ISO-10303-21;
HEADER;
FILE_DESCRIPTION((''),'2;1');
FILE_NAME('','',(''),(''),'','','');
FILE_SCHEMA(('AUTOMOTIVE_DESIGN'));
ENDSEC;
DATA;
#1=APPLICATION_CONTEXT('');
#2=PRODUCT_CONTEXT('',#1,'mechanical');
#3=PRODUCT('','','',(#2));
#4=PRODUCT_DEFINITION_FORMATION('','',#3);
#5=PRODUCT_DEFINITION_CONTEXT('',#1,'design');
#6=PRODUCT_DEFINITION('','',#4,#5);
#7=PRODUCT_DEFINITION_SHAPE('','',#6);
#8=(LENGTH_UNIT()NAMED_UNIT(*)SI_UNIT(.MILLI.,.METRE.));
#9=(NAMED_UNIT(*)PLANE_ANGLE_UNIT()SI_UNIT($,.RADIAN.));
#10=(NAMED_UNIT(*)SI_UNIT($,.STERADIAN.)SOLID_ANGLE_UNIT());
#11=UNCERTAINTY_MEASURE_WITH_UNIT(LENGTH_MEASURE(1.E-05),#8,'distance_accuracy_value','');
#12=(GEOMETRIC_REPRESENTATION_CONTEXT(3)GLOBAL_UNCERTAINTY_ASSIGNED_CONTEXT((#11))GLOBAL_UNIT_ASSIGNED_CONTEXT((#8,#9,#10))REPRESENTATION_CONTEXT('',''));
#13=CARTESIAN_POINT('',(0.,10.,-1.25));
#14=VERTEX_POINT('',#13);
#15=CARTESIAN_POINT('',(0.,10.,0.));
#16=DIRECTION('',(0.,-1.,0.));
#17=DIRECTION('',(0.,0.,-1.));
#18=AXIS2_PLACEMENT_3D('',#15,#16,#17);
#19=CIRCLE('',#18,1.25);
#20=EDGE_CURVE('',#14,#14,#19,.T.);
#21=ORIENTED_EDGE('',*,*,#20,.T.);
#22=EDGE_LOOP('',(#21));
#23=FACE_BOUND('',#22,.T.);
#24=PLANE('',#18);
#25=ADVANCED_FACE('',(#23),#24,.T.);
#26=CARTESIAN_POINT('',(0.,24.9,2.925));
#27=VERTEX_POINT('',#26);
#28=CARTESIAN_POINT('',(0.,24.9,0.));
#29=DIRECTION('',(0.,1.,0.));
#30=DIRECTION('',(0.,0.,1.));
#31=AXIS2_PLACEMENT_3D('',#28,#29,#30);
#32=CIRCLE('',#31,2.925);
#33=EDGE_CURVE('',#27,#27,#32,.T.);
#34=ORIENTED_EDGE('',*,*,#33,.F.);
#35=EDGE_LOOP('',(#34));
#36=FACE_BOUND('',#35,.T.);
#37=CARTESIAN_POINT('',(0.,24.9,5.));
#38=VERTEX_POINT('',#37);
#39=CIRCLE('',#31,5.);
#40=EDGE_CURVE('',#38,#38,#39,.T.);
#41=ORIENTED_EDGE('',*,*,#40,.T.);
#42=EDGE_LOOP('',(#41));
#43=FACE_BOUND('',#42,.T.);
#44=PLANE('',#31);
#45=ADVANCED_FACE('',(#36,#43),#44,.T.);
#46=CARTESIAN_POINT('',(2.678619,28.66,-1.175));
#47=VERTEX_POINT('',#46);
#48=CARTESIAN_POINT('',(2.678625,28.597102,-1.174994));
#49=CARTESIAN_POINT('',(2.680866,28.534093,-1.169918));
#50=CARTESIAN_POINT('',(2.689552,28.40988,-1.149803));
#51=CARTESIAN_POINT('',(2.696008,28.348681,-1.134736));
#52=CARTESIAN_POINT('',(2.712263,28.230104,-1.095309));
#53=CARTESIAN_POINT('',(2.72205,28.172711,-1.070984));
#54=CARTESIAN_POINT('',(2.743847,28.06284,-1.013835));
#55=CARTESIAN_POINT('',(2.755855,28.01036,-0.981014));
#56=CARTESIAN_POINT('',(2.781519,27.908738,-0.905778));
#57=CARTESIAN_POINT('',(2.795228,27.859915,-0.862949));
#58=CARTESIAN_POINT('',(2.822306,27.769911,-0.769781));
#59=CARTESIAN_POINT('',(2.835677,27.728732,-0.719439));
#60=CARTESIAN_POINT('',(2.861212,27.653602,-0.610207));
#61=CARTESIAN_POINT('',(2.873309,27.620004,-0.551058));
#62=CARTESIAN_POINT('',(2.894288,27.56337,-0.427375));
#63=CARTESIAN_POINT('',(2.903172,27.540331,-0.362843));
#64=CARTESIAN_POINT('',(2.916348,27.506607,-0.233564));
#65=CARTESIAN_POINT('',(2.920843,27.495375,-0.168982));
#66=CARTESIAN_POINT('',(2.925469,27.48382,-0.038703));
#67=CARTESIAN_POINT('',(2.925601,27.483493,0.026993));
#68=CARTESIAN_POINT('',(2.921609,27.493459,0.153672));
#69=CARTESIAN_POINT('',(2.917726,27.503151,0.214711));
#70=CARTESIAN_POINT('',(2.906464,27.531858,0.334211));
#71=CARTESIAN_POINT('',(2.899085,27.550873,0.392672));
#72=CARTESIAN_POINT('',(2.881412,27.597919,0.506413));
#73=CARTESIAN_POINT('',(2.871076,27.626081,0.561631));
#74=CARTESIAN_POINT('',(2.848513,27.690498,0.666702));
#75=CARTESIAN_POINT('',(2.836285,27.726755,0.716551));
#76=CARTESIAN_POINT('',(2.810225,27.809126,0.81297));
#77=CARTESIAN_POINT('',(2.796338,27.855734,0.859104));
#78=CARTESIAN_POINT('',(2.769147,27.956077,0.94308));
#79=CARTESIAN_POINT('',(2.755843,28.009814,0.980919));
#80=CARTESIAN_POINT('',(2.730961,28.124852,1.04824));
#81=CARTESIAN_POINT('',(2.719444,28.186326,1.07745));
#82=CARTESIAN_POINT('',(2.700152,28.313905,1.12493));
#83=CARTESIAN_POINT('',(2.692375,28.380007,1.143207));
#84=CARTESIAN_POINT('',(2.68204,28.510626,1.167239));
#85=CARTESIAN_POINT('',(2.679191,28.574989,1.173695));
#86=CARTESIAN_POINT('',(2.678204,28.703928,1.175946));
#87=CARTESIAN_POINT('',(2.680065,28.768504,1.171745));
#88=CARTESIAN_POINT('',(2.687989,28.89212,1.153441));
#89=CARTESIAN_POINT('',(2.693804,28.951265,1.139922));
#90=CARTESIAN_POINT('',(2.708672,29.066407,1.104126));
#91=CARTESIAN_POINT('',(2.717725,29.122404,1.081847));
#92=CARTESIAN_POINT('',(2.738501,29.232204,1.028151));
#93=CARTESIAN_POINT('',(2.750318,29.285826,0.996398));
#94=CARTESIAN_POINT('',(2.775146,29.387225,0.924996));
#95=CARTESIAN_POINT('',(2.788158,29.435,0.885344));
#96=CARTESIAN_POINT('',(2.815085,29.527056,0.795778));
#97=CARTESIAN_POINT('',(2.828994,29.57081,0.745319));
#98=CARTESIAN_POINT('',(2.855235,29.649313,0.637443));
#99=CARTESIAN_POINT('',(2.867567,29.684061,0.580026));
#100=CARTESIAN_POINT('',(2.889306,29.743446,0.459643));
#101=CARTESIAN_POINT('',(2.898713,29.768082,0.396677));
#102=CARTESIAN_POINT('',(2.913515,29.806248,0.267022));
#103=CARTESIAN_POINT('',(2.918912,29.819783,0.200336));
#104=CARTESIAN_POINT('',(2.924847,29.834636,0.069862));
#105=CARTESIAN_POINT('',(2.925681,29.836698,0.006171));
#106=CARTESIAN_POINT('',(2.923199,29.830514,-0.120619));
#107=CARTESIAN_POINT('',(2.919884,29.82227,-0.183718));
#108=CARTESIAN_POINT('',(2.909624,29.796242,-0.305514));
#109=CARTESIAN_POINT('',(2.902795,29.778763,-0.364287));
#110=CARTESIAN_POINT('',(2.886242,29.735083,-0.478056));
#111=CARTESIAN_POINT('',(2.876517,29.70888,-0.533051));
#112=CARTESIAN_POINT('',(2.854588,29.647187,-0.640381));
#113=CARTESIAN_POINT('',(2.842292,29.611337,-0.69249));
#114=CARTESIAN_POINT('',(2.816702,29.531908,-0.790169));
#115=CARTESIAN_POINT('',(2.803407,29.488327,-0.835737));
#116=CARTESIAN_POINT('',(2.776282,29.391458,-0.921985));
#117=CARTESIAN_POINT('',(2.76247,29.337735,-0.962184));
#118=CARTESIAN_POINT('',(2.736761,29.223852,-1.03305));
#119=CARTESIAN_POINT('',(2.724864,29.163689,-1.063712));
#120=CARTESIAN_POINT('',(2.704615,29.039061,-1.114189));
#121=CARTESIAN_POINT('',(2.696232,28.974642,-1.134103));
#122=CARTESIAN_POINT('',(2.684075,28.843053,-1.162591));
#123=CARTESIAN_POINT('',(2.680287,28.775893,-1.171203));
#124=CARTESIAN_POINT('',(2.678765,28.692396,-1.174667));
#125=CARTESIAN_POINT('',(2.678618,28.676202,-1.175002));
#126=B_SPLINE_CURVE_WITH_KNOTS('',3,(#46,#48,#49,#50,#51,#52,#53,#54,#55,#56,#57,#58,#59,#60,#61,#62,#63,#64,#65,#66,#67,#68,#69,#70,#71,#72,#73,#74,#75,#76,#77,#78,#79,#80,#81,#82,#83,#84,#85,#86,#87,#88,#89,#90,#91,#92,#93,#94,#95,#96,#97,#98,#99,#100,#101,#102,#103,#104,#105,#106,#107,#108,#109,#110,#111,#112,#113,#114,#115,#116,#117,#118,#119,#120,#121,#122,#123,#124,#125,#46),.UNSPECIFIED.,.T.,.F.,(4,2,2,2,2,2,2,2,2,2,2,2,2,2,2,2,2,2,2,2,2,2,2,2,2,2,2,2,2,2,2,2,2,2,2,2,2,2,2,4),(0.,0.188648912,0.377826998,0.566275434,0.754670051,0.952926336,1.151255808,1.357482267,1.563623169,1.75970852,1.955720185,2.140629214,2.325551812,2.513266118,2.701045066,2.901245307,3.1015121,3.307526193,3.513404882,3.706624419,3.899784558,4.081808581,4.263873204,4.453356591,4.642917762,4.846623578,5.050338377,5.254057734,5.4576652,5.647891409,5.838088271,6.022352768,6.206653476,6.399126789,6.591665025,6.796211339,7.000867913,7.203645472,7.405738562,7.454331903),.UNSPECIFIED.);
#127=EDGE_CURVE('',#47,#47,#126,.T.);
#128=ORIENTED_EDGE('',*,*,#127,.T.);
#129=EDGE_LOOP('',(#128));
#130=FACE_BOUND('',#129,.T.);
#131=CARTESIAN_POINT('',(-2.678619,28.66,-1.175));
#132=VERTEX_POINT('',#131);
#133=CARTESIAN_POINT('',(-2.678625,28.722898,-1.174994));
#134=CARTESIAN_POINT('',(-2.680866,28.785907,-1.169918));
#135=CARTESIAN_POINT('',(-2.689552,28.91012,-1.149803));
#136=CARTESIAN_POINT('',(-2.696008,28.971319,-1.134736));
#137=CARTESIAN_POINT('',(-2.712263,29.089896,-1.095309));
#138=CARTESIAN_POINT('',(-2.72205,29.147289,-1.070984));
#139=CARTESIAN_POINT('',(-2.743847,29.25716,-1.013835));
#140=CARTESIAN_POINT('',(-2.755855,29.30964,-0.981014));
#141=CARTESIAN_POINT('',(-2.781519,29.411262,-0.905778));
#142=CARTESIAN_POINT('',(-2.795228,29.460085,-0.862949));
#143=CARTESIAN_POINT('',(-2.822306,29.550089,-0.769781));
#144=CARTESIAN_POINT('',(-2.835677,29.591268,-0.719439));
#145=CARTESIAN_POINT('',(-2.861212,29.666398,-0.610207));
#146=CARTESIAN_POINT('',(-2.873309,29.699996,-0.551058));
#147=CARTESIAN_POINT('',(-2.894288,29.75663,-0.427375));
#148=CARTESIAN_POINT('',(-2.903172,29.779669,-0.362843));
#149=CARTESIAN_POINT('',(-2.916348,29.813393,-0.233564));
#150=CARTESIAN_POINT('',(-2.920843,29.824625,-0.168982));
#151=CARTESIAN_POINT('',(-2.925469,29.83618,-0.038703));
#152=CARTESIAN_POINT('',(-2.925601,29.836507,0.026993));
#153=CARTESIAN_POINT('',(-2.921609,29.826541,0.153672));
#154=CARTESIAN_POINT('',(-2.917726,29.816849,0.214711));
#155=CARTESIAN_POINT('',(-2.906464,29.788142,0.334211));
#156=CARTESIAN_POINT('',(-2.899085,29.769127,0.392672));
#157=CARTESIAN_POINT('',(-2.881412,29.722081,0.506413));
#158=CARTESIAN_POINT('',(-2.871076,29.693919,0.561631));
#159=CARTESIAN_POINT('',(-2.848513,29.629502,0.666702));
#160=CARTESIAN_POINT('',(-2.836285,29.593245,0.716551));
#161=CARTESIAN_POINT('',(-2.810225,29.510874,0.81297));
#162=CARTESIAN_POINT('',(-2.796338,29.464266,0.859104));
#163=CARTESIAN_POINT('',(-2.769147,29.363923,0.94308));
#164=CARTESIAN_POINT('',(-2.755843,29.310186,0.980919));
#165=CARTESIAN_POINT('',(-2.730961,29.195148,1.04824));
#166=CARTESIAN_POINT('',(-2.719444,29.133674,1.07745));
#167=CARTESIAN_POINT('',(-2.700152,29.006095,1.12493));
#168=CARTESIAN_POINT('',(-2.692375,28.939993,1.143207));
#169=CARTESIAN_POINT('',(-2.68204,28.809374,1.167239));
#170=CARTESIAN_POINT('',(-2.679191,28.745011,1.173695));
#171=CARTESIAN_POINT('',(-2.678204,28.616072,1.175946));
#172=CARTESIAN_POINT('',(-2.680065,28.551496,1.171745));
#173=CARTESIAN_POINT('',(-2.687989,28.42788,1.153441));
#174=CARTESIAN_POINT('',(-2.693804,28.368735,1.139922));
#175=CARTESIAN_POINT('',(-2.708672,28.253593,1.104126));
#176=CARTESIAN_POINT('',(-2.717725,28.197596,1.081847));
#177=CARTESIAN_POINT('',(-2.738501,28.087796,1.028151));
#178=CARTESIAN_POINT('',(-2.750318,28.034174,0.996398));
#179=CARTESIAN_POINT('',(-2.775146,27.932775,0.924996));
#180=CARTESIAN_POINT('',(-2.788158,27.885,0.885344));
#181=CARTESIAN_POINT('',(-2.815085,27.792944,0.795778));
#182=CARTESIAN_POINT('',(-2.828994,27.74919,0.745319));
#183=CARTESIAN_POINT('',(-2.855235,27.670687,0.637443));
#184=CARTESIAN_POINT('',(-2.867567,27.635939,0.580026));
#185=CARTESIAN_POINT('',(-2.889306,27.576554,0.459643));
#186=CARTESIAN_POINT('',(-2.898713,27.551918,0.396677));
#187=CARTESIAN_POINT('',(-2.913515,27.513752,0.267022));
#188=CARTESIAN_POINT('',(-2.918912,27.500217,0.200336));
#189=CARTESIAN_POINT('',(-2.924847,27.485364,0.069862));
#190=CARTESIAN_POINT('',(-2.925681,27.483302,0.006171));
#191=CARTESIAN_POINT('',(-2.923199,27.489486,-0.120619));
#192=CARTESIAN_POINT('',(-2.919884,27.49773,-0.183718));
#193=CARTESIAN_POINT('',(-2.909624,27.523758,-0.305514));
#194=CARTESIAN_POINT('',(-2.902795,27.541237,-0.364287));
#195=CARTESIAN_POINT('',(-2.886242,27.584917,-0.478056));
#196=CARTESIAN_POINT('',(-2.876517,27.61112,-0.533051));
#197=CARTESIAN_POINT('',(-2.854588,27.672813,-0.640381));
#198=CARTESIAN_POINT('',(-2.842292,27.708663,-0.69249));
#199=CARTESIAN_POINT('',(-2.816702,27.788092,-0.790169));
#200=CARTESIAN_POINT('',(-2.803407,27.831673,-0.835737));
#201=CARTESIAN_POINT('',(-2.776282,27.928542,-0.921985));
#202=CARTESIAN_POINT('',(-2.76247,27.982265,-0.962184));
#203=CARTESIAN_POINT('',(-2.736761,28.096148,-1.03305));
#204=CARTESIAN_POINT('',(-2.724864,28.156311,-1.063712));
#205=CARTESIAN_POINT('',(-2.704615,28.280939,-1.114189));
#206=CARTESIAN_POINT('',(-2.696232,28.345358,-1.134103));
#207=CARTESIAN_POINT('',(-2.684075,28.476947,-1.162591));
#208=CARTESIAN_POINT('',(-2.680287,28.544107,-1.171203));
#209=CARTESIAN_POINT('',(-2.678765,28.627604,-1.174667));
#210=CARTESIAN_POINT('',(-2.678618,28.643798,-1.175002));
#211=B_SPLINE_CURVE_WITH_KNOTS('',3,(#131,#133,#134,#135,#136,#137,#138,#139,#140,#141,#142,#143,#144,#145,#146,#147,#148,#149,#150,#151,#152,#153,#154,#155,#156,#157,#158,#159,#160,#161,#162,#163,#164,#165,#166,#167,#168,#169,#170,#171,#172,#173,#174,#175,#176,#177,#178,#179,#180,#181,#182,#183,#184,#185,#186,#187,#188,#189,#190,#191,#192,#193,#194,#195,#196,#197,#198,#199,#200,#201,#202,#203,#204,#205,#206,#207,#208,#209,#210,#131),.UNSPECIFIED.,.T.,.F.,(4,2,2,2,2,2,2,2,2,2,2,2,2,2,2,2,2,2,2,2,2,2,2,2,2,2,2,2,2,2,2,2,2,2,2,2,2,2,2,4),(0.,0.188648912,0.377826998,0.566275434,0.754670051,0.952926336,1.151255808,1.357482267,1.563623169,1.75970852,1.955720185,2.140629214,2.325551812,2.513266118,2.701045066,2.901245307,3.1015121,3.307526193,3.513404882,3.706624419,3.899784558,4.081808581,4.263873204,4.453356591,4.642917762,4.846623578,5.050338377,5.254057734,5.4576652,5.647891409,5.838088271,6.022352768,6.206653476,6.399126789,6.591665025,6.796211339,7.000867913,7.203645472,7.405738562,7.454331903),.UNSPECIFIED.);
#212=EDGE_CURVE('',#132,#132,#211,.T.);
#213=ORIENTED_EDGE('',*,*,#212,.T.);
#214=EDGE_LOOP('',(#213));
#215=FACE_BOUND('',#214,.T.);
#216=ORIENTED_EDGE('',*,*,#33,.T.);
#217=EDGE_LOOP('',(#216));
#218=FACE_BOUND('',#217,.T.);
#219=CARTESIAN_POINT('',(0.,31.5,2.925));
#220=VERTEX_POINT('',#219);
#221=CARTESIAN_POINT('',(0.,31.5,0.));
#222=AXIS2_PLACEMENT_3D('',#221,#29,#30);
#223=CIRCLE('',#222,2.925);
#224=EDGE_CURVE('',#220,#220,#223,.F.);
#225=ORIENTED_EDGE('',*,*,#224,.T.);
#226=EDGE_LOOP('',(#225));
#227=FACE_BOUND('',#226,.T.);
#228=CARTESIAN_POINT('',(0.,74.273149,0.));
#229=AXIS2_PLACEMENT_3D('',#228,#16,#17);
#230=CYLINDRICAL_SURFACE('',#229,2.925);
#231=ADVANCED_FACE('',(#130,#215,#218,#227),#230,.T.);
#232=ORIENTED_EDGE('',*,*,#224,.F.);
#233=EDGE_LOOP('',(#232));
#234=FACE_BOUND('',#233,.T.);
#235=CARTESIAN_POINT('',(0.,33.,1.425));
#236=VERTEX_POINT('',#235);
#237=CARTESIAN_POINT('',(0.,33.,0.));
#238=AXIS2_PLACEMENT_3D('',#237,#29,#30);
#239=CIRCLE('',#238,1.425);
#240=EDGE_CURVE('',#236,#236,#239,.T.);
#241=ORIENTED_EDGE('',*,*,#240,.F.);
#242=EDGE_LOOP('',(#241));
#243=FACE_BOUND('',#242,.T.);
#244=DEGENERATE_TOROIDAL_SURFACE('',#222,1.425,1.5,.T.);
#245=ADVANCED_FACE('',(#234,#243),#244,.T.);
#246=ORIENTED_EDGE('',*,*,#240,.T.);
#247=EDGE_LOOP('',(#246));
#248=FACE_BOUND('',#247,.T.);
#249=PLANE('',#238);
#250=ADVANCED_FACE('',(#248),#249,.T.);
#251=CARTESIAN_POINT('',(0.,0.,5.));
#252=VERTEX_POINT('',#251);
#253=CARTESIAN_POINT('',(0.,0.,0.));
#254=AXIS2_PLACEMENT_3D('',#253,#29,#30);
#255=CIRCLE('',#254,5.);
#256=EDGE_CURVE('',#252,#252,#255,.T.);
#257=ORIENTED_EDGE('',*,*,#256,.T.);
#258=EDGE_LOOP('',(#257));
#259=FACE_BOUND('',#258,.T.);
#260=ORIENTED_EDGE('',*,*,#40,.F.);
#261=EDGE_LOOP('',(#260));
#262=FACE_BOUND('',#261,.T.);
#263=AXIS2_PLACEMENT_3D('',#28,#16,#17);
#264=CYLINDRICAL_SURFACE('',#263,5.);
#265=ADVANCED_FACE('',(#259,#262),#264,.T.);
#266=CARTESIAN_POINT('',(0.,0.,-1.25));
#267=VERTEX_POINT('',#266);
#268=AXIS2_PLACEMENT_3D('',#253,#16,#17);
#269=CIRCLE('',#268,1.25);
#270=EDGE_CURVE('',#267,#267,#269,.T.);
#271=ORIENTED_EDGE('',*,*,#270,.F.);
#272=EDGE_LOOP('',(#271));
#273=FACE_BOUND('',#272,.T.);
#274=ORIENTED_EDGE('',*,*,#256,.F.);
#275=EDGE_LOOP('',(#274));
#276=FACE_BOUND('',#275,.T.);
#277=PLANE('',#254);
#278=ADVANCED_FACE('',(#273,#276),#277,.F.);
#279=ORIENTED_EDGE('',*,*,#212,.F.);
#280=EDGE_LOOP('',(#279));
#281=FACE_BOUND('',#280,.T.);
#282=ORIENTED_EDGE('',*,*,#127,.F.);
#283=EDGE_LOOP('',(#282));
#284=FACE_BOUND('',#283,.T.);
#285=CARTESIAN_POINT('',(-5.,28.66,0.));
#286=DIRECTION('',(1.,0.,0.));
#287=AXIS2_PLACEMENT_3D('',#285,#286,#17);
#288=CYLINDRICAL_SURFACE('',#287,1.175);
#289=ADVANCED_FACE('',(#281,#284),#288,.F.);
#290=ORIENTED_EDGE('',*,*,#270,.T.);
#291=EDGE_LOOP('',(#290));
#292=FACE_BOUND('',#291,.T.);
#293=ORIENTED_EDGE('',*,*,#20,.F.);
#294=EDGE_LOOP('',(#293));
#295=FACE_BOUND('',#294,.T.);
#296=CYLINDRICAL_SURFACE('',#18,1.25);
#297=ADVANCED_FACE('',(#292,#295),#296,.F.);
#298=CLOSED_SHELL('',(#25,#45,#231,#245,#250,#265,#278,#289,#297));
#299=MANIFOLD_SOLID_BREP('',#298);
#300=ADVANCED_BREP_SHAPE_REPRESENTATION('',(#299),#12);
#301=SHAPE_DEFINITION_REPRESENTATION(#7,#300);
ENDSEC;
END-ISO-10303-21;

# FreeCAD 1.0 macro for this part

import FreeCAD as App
import Part
import Sketcher

V = App.Vector


def edges_at(feature, points):
    """Names of the edges that pass closest to the given points."""
    edges = feature.Shape.Edges
    near = lambda p: min(range(len(edges)), key=lambda i: edges[i].distToShape(Part.Vertex(*p))[0])
    return sorted({f"Edge{near(p) + 1}" for p in points})

doc = App.newDocument("Part")
body = doc.addObject("PartDesign::Body", "Body")

# Sketch on XZ plane
sketch1 = doc.addObject("Sketcher::SketchObject", "Sketch")
body.addObject(sketch1)
sketch1.AttachmentSupport = (doc.XZ_Plane, [""])
sketch1.MapMode = "FlatFace"
sketch1.addGeometry(Part.Circle(V(0, 0, 0), V(0, 0, 1), 5), False)
sketch1.addConstraint([
    Sketcher.Constraint("Coincident", 0, 3, -1, 1),
    Sketcher.Constraint("Diameter", 0, 10.0),
])
pad1 = doc.addObject("PartDesign::Pad", "Pad")
body.addObject(pad1)
pad1.Profile = sketch1
pad1.Length = 24.9
pad1.Reversed = True

# Sketch on XZ plane
sketch2 = doc.addObject("Sketcher::SketchObject", "Sketch001")
body.addObject(sketch2)
sketch2.AttachmentSupport = (doc.XZ_Plane, [""])
sketch2.MapMode = "FlatFace"
sketch2.AttachmentOffset = App.Placement(V(0, 0, -24.9), App.Rotation())
sketch2.addGeometry(Part.Circle(V(0, 0, 0), V(0, 0, 1), 2.925), False)
sketch2.addConstraint([
    Sketcher.Constraint("Coincident", 0, 3, -1, 1),
    Sketcher.Constraint("Diameter", 0, 5.85),
])
pad2 = doc.addObject("PartDesign::Pad", "Pad001")
body.addObject(pad2)
pad2.Profile = sketch2
pad2.Length = 8.1
pad2.Reversed = True
doc.recompute()

fillet = doc.addObject("PartDesign::Fillet", "Fillet")
body.addObject(fillet)
fillet.Base = (pad2, edges_at(pad2, [(0, 33, 2.925)]))
fillet.Radius = 1.5

# Sketch on YZ plane
sketch3 = doc.addObject("Sketcher::SketchObject", "Sketch002")
body.addObject(sketch3)
sketch3.AttachmentSupport = (doc.YZ_Plane, [""])
sketch3.MapMode = "FlatFace"
sketch3.addGeometry(Part.Circle(V(28.66, 0, 0), V(0, 0, 1), 1.175), False)
sketch3.addConstraint([
    Sketcher.Constraint("PointOnObject", 0, 3, -1),
    Sketcher.Constraint("Diameter", 0, 2.35),
    Sketcher.Constraint("DistanceX", -1, 1, 0, 3, 28.66),
])
pocket1 = doc.addObject("PartDesign::Pocket", "Pocket")
body.addObject(pocket1)
pocket1.Profile = sketch3
pocket1.Type = "ThroughAll"
pocket1.Midplane = True

# Sketch on XZ plane
sketch4 = doc.addObject("Sketcher::SketchObject", "Sketch003")
body.addObject(sketch4)
sketch4.AttachmentSupport = (doc.XZ_Plane, [""])
sketch4.MapMode = "FlatFace"
sketch4.addGeometry(Part.Circle(V(0, 0, 0), V(0, 0, 1), 1.25), False)
sketch4.addConstraint([
    Sketcher.Constraint("Coincident", 0, 3, -1, 1),
    Sketcher.Constraint("Diameter", 0, 2.5),
])
pocket2 = doc.addObject("PartDesign::Pocket", "Pocket001")
body.addObject(pocket2)
pocket2.Profile = sketch4
pocket2.Length = 10

doc.recompute()
